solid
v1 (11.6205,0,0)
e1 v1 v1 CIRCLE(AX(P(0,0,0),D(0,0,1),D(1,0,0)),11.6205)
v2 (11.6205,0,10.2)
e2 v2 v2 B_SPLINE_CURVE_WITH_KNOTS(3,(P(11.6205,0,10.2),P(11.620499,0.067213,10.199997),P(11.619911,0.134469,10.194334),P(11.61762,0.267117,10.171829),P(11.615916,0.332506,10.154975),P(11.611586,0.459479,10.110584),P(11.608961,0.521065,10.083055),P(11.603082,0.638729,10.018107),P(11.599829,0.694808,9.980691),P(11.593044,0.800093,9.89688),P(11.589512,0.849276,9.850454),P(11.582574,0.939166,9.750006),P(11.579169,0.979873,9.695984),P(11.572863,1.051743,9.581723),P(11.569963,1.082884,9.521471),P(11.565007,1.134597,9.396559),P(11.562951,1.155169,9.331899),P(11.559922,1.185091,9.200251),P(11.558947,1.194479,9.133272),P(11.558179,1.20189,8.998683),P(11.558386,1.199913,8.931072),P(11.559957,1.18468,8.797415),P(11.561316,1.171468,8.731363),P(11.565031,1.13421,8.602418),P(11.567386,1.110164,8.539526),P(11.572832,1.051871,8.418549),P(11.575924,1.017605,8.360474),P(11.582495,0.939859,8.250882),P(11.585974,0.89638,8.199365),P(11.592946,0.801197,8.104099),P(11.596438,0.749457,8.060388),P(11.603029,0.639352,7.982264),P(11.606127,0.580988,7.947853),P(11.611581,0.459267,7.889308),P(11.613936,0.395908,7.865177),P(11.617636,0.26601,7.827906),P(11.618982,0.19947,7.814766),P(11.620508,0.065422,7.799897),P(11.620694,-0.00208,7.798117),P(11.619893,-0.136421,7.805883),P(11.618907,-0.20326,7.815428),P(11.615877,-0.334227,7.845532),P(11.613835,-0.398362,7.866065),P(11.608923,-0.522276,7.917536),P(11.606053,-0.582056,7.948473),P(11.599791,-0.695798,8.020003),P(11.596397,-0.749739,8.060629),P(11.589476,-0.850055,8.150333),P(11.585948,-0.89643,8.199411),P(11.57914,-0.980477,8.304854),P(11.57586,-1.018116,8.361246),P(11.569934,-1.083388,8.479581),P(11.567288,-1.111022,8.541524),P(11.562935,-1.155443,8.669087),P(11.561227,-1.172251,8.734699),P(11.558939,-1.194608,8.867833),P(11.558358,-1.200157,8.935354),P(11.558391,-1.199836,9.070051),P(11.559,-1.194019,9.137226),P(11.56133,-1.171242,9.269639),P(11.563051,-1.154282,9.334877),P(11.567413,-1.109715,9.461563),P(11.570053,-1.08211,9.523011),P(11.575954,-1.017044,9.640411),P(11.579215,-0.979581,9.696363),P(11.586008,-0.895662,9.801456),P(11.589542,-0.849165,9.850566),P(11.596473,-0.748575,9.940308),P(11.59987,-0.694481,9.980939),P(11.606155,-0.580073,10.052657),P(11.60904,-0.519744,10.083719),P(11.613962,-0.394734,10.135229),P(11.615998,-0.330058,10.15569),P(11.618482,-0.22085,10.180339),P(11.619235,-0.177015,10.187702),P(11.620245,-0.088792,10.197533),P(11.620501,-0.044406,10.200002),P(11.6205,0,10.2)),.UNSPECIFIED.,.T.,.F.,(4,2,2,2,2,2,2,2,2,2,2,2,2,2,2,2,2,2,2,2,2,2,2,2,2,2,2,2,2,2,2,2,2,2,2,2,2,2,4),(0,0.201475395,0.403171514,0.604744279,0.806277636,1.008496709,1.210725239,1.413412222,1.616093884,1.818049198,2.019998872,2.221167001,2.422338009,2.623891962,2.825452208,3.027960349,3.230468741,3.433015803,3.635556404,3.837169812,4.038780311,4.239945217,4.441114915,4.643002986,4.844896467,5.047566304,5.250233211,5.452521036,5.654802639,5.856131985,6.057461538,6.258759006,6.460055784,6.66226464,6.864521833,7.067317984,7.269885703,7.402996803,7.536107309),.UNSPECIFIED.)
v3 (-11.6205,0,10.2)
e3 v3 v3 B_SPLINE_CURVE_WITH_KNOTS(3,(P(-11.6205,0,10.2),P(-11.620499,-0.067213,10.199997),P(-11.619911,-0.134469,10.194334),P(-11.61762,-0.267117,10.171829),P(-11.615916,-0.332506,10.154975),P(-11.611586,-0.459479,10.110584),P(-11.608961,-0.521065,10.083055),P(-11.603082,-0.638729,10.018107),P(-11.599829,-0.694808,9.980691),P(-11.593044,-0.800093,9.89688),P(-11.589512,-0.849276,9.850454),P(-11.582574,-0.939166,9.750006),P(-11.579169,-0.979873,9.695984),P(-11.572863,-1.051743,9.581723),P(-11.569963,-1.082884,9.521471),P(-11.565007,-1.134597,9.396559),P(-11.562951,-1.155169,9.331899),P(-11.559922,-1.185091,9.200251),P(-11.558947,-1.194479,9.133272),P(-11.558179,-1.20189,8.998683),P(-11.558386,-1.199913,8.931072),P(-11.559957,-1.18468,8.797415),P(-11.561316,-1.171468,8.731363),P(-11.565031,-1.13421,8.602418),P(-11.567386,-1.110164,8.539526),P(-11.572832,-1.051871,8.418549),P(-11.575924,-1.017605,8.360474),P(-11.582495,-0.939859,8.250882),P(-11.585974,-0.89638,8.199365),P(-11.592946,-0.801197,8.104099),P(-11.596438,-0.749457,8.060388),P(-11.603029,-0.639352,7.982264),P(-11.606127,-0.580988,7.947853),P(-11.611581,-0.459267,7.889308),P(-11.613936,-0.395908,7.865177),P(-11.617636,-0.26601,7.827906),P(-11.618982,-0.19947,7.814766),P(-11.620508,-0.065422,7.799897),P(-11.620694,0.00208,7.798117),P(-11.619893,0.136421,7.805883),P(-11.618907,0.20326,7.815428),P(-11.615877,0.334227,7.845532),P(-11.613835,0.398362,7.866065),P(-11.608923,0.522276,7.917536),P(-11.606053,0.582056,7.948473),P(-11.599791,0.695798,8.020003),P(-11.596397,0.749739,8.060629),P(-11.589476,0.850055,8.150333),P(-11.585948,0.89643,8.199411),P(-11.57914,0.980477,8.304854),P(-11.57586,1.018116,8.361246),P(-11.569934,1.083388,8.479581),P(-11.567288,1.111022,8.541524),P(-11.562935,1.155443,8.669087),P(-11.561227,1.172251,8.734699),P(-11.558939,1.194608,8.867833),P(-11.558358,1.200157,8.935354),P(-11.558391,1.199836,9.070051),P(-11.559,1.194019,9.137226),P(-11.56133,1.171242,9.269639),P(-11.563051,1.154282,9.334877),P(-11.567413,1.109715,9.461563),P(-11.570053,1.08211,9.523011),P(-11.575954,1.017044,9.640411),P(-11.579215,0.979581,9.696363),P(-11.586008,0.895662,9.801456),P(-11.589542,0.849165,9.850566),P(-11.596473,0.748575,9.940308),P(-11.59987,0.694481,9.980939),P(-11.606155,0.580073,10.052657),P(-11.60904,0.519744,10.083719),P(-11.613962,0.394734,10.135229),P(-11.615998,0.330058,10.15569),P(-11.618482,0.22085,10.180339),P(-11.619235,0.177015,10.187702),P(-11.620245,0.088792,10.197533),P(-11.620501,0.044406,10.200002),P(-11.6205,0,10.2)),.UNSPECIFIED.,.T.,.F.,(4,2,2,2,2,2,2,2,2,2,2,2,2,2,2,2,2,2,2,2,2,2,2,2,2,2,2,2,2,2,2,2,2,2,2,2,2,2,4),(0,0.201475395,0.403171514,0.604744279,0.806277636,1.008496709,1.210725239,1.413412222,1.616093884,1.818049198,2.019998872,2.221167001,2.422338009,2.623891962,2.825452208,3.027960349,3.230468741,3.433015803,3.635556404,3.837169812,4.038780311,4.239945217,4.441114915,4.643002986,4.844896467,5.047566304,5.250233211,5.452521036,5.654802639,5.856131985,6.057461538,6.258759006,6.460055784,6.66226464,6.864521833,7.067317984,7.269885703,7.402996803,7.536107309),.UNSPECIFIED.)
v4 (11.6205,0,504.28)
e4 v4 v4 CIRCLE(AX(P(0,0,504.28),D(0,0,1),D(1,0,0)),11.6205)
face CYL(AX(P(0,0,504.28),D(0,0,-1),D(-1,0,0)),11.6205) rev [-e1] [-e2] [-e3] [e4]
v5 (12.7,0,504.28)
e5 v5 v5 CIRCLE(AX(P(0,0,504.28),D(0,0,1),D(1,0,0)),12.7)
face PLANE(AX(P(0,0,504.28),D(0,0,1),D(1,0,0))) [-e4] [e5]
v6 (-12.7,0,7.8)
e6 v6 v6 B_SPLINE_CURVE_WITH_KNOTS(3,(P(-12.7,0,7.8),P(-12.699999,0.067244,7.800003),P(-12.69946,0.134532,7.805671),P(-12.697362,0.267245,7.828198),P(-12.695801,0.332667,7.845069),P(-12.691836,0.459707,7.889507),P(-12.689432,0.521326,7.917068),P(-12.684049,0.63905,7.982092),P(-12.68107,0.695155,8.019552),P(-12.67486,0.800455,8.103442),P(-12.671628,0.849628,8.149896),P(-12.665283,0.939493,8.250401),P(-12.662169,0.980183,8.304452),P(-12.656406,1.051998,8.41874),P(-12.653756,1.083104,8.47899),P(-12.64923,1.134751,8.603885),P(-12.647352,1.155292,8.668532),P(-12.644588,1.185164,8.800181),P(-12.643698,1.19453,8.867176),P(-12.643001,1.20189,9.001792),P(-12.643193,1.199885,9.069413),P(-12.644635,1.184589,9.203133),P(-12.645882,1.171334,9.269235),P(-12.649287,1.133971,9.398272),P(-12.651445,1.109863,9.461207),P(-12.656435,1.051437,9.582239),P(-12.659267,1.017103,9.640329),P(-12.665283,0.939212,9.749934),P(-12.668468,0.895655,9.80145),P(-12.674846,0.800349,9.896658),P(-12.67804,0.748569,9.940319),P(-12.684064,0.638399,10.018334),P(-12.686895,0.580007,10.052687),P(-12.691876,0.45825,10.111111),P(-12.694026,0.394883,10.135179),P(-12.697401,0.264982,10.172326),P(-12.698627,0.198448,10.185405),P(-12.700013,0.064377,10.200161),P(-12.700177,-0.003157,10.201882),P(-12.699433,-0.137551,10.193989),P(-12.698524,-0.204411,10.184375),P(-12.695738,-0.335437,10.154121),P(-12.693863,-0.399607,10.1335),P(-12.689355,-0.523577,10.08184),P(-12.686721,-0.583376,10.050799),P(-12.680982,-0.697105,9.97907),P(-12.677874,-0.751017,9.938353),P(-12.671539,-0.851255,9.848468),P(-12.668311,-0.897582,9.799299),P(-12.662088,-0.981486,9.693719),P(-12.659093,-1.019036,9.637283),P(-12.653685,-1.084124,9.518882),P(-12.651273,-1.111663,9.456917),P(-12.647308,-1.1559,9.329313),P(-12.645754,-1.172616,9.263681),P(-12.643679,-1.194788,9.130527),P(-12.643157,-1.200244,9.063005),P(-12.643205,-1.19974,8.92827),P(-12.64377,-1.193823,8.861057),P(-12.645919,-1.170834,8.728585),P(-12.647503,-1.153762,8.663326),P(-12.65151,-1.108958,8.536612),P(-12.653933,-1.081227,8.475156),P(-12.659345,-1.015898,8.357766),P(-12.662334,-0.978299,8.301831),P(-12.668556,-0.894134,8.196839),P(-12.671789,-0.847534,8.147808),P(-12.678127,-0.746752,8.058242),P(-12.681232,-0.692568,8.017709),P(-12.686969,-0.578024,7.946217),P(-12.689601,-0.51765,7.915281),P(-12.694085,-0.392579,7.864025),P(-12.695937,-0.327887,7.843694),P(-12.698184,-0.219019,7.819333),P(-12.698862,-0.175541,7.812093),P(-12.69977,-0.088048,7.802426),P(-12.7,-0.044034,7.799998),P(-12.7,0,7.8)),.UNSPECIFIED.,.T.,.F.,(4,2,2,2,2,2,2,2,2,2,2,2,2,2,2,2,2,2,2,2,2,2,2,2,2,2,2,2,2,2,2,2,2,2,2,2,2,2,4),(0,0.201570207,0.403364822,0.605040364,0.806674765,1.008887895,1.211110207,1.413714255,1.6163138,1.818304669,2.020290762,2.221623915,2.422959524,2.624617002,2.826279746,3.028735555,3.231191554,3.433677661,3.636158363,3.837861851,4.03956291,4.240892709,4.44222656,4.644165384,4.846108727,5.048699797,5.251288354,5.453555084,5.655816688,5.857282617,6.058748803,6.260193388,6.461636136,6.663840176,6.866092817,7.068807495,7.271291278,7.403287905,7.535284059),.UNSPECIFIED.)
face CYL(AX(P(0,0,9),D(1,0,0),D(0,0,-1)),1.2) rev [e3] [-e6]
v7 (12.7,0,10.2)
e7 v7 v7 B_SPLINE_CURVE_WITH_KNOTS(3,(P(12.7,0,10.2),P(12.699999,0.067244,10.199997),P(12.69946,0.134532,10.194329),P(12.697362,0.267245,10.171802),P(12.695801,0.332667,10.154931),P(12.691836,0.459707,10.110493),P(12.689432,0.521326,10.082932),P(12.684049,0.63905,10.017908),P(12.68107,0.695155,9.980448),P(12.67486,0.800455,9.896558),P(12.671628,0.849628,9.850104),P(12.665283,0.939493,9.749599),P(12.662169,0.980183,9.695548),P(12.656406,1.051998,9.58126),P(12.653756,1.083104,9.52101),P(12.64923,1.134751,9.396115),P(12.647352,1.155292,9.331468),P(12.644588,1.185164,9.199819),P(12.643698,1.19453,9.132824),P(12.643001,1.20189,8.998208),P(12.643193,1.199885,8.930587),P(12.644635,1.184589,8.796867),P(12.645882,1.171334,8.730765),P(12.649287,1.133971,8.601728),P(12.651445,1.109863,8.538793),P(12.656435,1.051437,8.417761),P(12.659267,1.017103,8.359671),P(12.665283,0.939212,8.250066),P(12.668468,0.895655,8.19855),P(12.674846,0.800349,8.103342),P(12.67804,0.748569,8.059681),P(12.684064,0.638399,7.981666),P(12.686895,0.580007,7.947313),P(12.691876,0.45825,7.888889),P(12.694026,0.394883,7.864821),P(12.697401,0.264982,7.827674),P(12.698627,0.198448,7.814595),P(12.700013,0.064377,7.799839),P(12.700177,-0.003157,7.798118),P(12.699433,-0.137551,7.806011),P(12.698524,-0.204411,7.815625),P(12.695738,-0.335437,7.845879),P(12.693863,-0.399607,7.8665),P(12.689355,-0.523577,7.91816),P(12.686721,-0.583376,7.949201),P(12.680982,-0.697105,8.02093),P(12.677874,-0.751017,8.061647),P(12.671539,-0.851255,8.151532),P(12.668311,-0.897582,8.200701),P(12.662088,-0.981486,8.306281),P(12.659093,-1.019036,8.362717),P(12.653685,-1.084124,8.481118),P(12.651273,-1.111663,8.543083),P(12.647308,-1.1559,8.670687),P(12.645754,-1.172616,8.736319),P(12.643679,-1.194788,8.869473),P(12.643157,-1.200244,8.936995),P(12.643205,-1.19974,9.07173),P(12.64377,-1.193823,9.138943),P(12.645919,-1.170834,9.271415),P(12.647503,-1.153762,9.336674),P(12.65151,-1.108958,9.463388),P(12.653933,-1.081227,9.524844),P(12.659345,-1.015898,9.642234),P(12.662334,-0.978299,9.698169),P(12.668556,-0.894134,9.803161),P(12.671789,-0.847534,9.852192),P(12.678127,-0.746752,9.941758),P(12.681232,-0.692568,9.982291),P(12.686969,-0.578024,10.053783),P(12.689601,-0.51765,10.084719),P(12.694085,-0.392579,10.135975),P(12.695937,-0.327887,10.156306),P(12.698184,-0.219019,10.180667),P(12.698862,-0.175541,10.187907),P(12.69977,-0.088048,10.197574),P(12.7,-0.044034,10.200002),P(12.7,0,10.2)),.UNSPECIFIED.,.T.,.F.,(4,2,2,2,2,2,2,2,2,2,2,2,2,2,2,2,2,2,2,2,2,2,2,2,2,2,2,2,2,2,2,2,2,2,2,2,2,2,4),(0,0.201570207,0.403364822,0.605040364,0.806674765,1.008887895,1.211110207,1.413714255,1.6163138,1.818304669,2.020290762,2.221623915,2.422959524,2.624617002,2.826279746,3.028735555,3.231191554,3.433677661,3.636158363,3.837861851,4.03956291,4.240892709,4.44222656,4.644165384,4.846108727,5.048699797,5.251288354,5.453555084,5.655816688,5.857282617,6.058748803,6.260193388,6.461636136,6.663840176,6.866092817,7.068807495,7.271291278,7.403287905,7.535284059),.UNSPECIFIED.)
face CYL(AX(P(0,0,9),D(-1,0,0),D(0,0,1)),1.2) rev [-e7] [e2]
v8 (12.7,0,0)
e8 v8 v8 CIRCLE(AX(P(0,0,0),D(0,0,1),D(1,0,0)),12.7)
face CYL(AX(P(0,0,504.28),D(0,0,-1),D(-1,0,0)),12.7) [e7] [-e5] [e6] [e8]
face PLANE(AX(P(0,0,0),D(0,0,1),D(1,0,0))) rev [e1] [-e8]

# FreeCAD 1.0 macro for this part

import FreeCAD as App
import Part
import Sketcher

V = App.Vector
Q = App.Units.Quantity


def add_polygon(sketch, points):
    """Adds a closed chain of lines whose ends are joined by coincident constraints."""
    first, n = sketch.GeometryCount, len(points)
    for a, b in zip(points, points[1:] + points[:1]):
        sketch.addGeometry(Part.LineSegment(App.Vector(*a, 0), App.Vector(*b, 0)), False)
    for i in range(n):
        sketch.addConstraint(Sketcher.Constraint("Coincident", first + i, 2, first + (i + 1) % n, 1))

doc = App.newDocument("Part")
body = doc.addObject("PartDesign::Body", "Body")

sketch1 = doc.addObject("Sketcher::SketchObject", "Sketch")
body.addObject(sketch1)
sketch1.AttachmentSupport = (doc.XY_Plane, [""])
sketch1.MapMode = "FlatFace"
sketch1.addGeometry([
    Part.Circle(V(0, 0, 0), V(0, 0, 1), 13),
    Part.Circle(V(0, 0, 0), V(0, 0, 1), 12),
], False)
sketch1.addConstraint([
    Sketcher.Constraint("Coincident", 0, 3, -1, 1),
    Sketcher.Constraint("Coincident", 1, 3, -1, 1),
    Sketcher.Constraint("Diameter", 0, Q("1 in")),
    Sketcher.Constraint("Diameter", 1, Q("0.915 in")),
])
pad1 = doc.addObject("PartDesign::Pad", "Pad")
body.addObject(pad1)
pad1.Profile = sketch1
pad1.Length = 504.28

sketch2 = doc.addObject("Sketcher::SketchObject", "Sketch001")
body.addObject(sketch2)
sketch2.AttachmentSupport = (doc.XZ_Plane, [""])
sketch2.MapMode = "FlatFace"
add_polygon(sketch2, [(12.7, 9), (0, 9), (0, 10.2), (12.7, 10.2)])
sketch2.addGeometry(Part.LineSegment(V(0, 9, 0), V(12.7, 9, 0)), True)
sketch2.addConstraint([
    Sketcher.Constraint("Horizontal", 0),
    Sketcher.Constraint("Vertical", 1),
    Sketcher.Constraint("Horizontal", 2),
    Sketcher.Constraint("Vertical", 3),
    Sketcher.Constraint("Horizontal", 4),
    Sketcher.Constraint("Coincident", 4, 1, 0, 2),
    Sketcher.Constraint("PointOnObject", 0, 2, -2),
    Sketcher.Constraint("Vertical", 2, 2, 4, 2),
    Sketcher.Constraint("DistanceX", 0, 2, 0, 1, Q("0.5 in")),
    Sketcher.Constraint("DistanceY", 1, 1, 1, 2, Q("1.2 mm")),
    Sketcher.Constraint("DistanceY", -1, 1, 0, 2, Q("9 mm")),
])
groove = doc.addObject("PartDesign::Groove", "Groove")
body.addObject(groove)
groove.Profile = sketch2
groove.ReferenceAxis = (sketch2, ["Axis0"])
groove.Angle = 360
doc.recompute()

mirrored = doc.addObject("PartDesign::Mirrored", "Mirrored")
body.addObject(mirrored)
mirrored.Originals = [groove]
mirrored.MirrorPlane = (doc.YZ_Plane, [""])
body.Tip = mirrored

doc.recompute()
